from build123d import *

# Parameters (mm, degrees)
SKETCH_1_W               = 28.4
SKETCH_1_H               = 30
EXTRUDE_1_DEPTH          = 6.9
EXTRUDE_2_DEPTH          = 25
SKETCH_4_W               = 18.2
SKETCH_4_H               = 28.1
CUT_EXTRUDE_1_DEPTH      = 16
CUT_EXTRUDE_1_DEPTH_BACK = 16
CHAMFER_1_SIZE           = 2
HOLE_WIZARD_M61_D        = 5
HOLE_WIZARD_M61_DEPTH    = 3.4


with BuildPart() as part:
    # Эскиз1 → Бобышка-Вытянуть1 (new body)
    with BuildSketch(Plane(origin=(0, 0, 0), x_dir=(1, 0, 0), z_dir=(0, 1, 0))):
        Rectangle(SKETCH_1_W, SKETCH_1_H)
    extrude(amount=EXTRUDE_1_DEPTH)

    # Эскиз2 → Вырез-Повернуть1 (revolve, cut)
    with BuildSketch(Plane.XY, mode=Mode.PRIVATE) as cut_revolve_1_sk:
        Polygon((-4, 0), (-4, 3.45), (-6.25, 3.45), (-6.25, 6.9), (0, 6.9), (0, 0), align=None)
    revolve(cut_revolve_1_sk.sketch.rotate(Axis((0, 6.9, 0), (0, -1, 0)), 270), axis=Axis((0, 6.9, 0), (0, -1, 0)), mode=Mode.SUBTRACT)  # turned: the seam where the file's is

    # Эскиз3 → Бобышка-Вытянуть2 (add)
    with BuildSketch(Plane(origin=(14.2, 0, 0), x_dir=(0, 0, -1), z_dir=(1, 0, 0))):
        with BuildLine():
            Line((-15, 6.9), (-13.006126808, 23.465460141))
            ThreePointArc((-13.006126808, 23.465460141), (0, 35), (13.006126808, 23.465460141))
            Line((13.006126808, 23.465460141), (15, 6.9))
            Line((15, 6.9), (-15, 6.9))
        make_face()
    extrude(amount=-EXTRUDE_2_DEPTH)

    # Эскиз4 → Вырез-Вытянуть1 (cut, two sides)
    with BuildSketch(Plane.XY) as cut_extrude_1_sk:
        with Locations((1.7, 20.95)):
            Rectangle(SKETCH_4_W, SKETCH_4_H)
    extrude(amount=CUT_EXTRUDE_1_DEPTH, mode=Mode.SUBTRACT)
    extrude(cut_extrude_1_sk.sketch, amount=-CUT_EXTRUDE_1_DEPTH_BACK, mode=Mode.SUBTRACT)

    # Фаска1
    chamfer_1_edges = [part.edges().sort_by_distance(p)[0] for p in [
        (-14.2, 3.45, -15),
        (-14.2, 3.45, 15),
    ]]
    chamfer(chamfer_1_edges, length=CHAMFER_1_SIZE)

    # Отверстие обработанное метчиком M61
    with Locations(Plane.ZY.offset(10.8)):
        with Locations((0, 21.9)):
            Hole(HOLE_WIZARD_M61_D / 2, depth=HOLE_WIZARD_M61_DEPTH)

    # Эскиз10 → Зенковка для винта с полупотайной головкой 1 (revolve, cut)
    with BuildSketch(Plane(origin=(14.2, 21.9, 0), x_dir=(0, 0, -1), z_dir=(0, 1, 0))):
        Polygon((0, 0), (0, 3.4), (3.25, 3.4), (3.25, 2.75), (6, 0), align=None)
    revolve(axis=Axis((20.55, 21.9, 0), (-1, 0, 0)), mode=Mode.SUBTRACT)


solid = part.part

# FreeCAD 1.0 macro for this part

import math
import FreeCAD as App
import Part
import Sketcher

V = App.Vector
Q = App.Units.Quantity


def edges_at(feature, points):
    """Names of the edges that pass closest to the given points."""
    edges = feature.Shape.Edges
    near = lambda p: min(range(len(edges)), key=lambda i: edges[i].distToShape(Part.Vertex(*p))[0])
    return sorted({f"Edge{near(p) + 1}" for p in points})

doc = App.newDocument("Part")
body = doc.addObject("PartDesign::Body", "Body")

sketch1 = body.newObject("Sketcher::SketchObject", "Sketch")
sketch1.AttachmentSupport = (doc.getObject("XZ_Plane"), [""])
sketch1.MapMode = "FlatFace"
sketch1.addGeometry(Part.LineSegment(V(-14, -15, 0), V(-14, 15, 0)), False)
sketch1.addGeometry(Part.LineSegment(V(-14, 15, 0), V(14, 15, 0)), False)
sketch1.addGeometry(Part.LineSegment(V(14, 15, 0), V(14, -15, 0)), False)
sketch1.addGeometry(Part.LineSegment(V(14, -15, 0), V(-14, -15, 0)), False)
sketch1.addConstraint(Sketcher.Constraint("Coincident", 0, 2, 1, 1))
sketch1.addConstraint(Sketcher.Constraint("Coincident", 1, 2, 2, 1))
sketch1.addConstraint(Sketcher.Constraint("Coincident", 2, 2, 3, 1))
sketch1.addConstraint(Sketcher.Constraint("Coincident", 3, 2, 0, 1))
sketch1.addConstraint(Sketcher.Constraint("Vertical", 0))
sketch1.addConstraint(Sketcher.Constraint("Horizontal", 1))
sketch1.addConstraint(Sketcher.Constraint("Vertical", 2))
sketch1.addConstraint(Sketcher.Constraint("Horizontal", 3))
sketch1.addConstraint(Sketcher.Constraint("Symmetric", 0, 2, 2, 2, -1, 1))
sketch1.addConstraint(Sketcher.Constraint("DistanceY", 0, 1, 0, 2, Q("30 mm")))
sketch1.addConstraint(Sketcher.Constraint("DistanceX", 1, 1, 1, 2, Q("28.4 mm")))
pad1 = body.newObject("PartDesign::Pad", "Pad")
pad1.Profile = sketch1
pad1.Length = 6.9
pad1.Reversed = True

sketch2 = body.newObject("Sketcher::SketchObject", "Sketch001")
sketch2.AttachmentSupport = (doc.getObject("XY_Plane"), [""])
sketch2.MapMode = "FlatFace"
sketch2.addGeometry(Part.LineSegment(V(-4, 3.5, 0), V(-4, 0, 0)), False)
sketch2.addGeometry(Part.LineSegment(V(-4, 0, 0), V(0, 0, 0)), False)
sketch2.addGeometry(Part.LineSegment(V(0, 0, 0), V(0, 6.9, 0)), False)
sketch2.addGeometry(Part.LineSegment(V(0, 6.9, 0), V(-6.2, 6.9, 0)), False)
sketch2.addGeometry(Part.LineSegment(V(-6.2, 6.9, 0), V(-6.2, 3.5, 0)), False)
sketch2.addGeometry(Part.LineSegment(V(-6.2, 3.5, 0), V(-4, 3.5, 0)), False)
sketch2.addConstraint(Sketcher.Constraint("Coincident", 0, 2, 1, 1))
sketch2.addConstraint(Sketcher.Constraint("Coincident", 1, 2, 2, 1))
sketch2.addConstraint(Sketcher.Constraint("Coincident", 2, 2, 3, 1))
sketch2.addConstraint(Sketcher.Constraint("Coincident", 3, 2, 4, 1))
sketch2.addConstraint(Sketcher.Constraint("Coincident", 4, 2, 5, 1))
sketch2.addConstraint(Sketcher.Constraint("Coincident", 5, 2, 0, 1))
sketch2.addConstraint(Sketcher.Constraint("Vertical", 0))
sketch2.addConstraint(Sketcher.Constraint("Horizontal", 1))
sketch2.addConstraint(Sketcher.Constraint("Vertical", 2))
sketch2.addConstraint(Sketcher.Constraint("Horizontal", 3))
sketch2.addConstraint(Sketcher.Constraint("Vertical", 4))
sketch2.addConstraint(Sketcher.Constraint("Horizontal", 5))
sketch2.addConstraint(Sketcher.Constraint("Coincident", 1, 2, -1, 1))
sketch2.addConstraint(Sketcher.Constraint("Equal", 0, 4))
sketch2.addConstraint(Sketcher.Constraint("DistanceX", 1, 1, 1, 2, Q("4 mm")))
sketch2.addConstraint(Sketcher.Constraint("DistanceY", 2, 1, 2, 2, Q("6.9 mm")))
sketch2.addConstraint(Sketcher.Constraint("DistanceX", 3, 2, 3, 1, Q("6.25 mm")))
groove = body.newObject("PartDesign::Groove", "Groove")
groove.Profile = sketch2
groove.ReferenceAxis = (sketch2, ["V_Axis"])
groove.Angle = 360

sketch3 = body.newObject("Sketcher::SketchObject", "Sketch002")
sketch3.AttachmentSupport = (doc.getObject("YZ_Plane"), [""])
sketch3.MapMode = "FlatFace"
sketch3.AttachmentOffset = App.Placement(V(0, 0, 14.2), App.Rotation())
sketch3.addGeometry(Part.LineSegment(V(23, 13, 0), V(7, 15, 0)), False)
sketch3.addGeometry(Part.LineSegment(V(7, 15, 0), V(7, -15, 0)), False)
sketch3.addGeometry(Part.LineSegment(V(7, -15, 0), V(23, -13, 0)), False)
sketch3.addGeometry(Part.ArcOfCircle(Part.Circle(V(22, 0, 0), V(0, 0, 1), 13), math.radians(-83), math.radians(83)), False)
sketch3.addConstraint(Sketcher.Constraint("Coincident", 0, 2, 1, 1))
sketch3.addConstraint(Sketcher.Constraint("Coincident", 1, 2, 2, 1))
sketch3.addConstraint(Sketcher.Constraint("Tangent", 2, 2, 3, 1))
sketch3.addConstraint(Sketcher.Constraint("Tangent", 3, 2, 0, 1))
sketch3.addConstraint(Sketcher.Constraint("Vertical", 1))
sketch3.addConstraint(Sketcher.Constraint("Symmetric", 2, 2, 3, 2, -1))
sketch3.addConstraint(Sketcher.Constraint("Radius", 3, Q("13.1 mm")))
sketch3.addConstraint(Sketcher.Constraint("DistanceY", 1, 2, 1, 1, Q("30 mm")))
sketch3.addConstraint(Sketcher.Constraint("DistanceX", 0, 2, 3, 3, Q("15 mm")))
sketch3.addConstraint(Sketcher.Constraint("DistanceX", -1, 1, 3, 3, Q("21.9 mm")))
pad2 = body.newObject("PartDesign::Pad", "Pad001")
pad2.Profile = sketch3
pad2.Length = 25
pad2.Reversed = True

sketch4 = body.newObject("Sketcher::SketchObject", "Sketch003")
sketch4.AttachmentSupport = (doc.getObject("XY_Plane"), [""])
sketch4.MapMode = "FlatFace"
sketch4.addGeometry(Part.LineSegment(V(-7, 35, 0), V(-7, 7, 0)), False)
sketch4.addGeometry(Part.LineSegment(V(-7, 7, 0), V(11, 7, 0)), False)
sketch4.addGeometry(Part.LineSegment(V(11, 7, 0), V(11, 35, 0)), False)
sketch4.addGeometry(Part.LineSegment(V(11, 35, 0), V(-7, 35, 0)), False)
sketch4.addConstraint(Sketcher.Constraint("Coincident", 0, 2, 1, 1))
sketch4.addConstraint(Sketcher.Constraint("Coincident", 1, 2, 2, 1))
sketch4.addConstraint(Sketcher.Constraint("Coincident", 2, 2, 3, 1))
sketch4.addConstraint(Sketcher.Constraint("Coincident", 3, 2, 0, 1))
sketch4.addConstraint(Sketcher.Constraint("Vertical", 0))
sketch4.addConstraint(Sketcher.Constraint("Horizontal", 1))
sketch4.addConstraint(Sketcher.Constraint("Vertical", 2))
sketch4.addConstraint(Sketcher.Constraint("Horizontal", 3))
sketch4.addConstraint(Sketcher.Constraint("DistanceX", 1, 1, 1, 2, Q("18.2 mm")))
sketch4.addConstraint(Sketcher.Constraint("DistanceY", 0, 2, 0, 1, Q("28.1 mm")))
sketch4.addConstraint(Sketcher.Constraint("DistanceY", -1, 1, 2, 2, Q("35 mm")))
sketch4.addConstraint(Sketcher.Constraint("DistanceX", 0, 2, -1, 1, Q("7.4 mm")))
pocket1 = body.newObject("PartDesign::Pocket", "Pocket")
pocket1.Profile = sketch4
pocket1.Type = "ThroughAll"
pocket1.Midplane = True
doc.recompute()

chamfer = body.newObject("PartDesign::Chamfer", "Chamfer")
chamfer.Base = (pocket1, edges_at(pocket1, [(-14.2, 3.45, -15), (-14.2, 3.45, 15)]))
chamfer.Size = 2

sketch5 = body.newObject("Sketcher::SketchObject", "Sketch004")
sketch5.AttachmentSupport = (doc.getObject("YZ_Plane"), [""])
sketch5.MapMode = "FlatFace"
sketch5.AttachmentOffset = App.Placement(V(0, 0, -10.8), App.Rotation())
sketch5.addGeometry(Part.Circle(V(21.9, 0, 0), V(0, 0, 1), 2.5), False)
sketch5.addConstraint(Sketcher.Constraint("PointOnObject", 0, 3, -1))
sketch5.addConstraint(Sketcher.Constraint("Diameter", 0, Q("5 mm")))
sketch5.addConstraint(Sketcher.Constraint("DistanceX", -1, 1, 0, 3, Q("21.9 mm")))
doc.recompute()
hole = body.newObject("PartDesign::Hole", "Hole")
hole.Profile = sketch5
hole.ThreadType = "None"
hole.Diameter = 5
hole.DepthType = "Dimension"
hole.Depth = 3.4
hole.DrillPoint = "Flat"
hole.Reversed = True

sketch6 = body.newObject("Sketcher::SketchObject", "Sketch005")
sketch6.AttachmentSupport = (doc.getObject("XZ_Plane"), [""])
sketch6.MapMode = "FlatFace"
sketch6.AttachmentOffset = App.Placement(V(0, 0, -21.9), App.Rotation())
sketch6.addGeometry(Part.LineSegment(V(10.8, 0, 0), V(14.2, 0, 0)), False)
sketch6.addGeometry(Part.LineSegment(V(14.2, 0, 0), V(14.2, -6, 0)), False)
sketch6.addGeometry(Part.LineSegment(V(14.2, -6, 0), V(11.4, -3.2, 0)), False)
sketch6.addGeometry(Part.LineSegment(V(11.4, -3.2, 0), V(10.8, -3.2, 0)), False)
sketch6.addGeometry(Part.LineSegment(V(10.8, -3.2, 0), V(10.8, 0, 0)), False)
sketch6.addConstraint(Sketcher.Constraint("Coincident", 0, 2, 1, 1))
sketch6.addConstraint(Sketcher.Constraint("Coincident", 1, 2, 2, 1))
sketch6.addConstraint(Sketcher.Constraint("Coincident", 2, 2, 3, 1))
sketch6.addConstraint(Sketcher.Constraint("Coincident", 3, 2, 4, 1))
sketch6.addConstraint(Sketcher.Constraint("Coincident", 4, 2, 0, 1))
sketch6.addConstraint(Sketcher.Constraint("Horizontal", 0))
sketch6.addConstraint(Sketcher.Constraint("Vertical", 1))
sketch6.addConstraint(Sketcher.Constraint("Horizontal", 3))
sketch6.addConstraint(Sketcher.Constraint("Vertical", 4))
sketch6.addConstraint(Sketcher.Constraint("PointOnObject", 0, 2, -1))
sketch6.addConstraint(Sketcher.Constraint("DistanceY", 1, 2, 1, 1, Q("6 mm")))
sketch6.addConstraint(Sketcher.Constraint("Angle", 2, Q("135 deg")))
sketch6.addConstraint(Sketcher.Constraint("DistanceX", 0, 1, 0, 2, Q("3.4 mm")))
sketch6.addConstraint(Sketcher.Constraint("DistanceX", 3, 2, 3, 1, Q("0.65 mm")))
sketch6.addConstraint(Sketcher.Constraint("DistanceX", -1, 1, 0, 2, Q("14.2 mm")))
groove2 = body.newObject("PartDesign::Groove", "Groove001")
groove2.Profile = sketch6
groove2.ReferenceAxis = (sketch6, ["H_Axis"])
groove2.Angle = 360

doc.recompute()
